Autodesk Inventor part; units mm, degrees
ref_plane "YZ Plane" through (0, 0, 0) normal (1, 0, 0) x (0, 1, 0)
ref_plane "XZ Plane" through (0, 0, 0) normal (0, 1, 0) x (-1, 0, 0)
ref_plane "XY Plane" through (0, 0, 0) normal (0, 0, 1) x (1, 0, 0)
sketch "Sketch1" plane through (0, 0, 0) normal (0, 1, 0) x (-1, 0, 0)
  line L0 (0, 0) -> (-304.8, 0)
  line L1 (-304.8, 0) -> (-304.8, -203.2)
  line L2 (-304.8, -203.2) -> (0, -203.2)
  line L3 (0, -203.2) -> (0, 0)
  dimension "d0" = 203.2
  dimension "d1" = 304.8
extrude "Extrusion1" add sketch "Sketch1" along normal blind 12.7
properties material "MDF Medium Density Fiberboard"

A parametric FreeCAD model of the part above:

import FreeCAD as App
import Part
import Sketcher

V = App.Vector
Q = App.Units.Quantity


def add_polygon(sketch, points):
    """Adds a closed chain of lines whose ends are joined by coincident constraints."""
    first, n = sketch.GeometryCount, len(points)
    for a, b in zip(points, points[1:] + points[:1]):
        sketch.addGeometry(Part.LineSegment(App.Vector(*a, 0), App.Vector(*b, 0)), False)
    for i in range(n):
        sketch.addConstraint(Sketcher.Constraint("Coincident", first + i, 2, first + (i + 1) % n, 1))

doc = App.newDocument("Part")
body = doc.addObject("PartDesign::Body", "Body")

# Sketch on XZ plane
sketch1 = body.newObject("Sketcher::SketchObject", "Sketch")
sketch1.AttachmentSupport = (doc.getObject("XZ_Plane"), [""])
sketch1.MapMode = "FlatFace"
add_polygon(sketch1, [(0, -203), (0, 0), (305, 0), (305, -203)])  # lines 0-3
sketch1.addConstraint([
    Sketcher.Constraint("Vertical", 0),
    Sketcher.Constraint("Horizontal", 1),
    Sketcher.Constraint("Vertical", 2),
    Sketcher.Constraint("Horizontal", 3),
    Sketcher.Constraint("Coincident", 0, 2, -1, 1),
    Sketcher.Constraint("DistanceX", 1, 1, 1, 2, Q("12 in")),
    Sketcher.Constraint("DistanceY", 0, 1, 0, 2, Q("8 in")),
])
pad1 = body.newObject("PartDesign::Pad", "Pad")
pad1.Profile = sketch1
pad1.Length = Q("0.5 in")
pad1.Reversed = True

doc.recompute()
